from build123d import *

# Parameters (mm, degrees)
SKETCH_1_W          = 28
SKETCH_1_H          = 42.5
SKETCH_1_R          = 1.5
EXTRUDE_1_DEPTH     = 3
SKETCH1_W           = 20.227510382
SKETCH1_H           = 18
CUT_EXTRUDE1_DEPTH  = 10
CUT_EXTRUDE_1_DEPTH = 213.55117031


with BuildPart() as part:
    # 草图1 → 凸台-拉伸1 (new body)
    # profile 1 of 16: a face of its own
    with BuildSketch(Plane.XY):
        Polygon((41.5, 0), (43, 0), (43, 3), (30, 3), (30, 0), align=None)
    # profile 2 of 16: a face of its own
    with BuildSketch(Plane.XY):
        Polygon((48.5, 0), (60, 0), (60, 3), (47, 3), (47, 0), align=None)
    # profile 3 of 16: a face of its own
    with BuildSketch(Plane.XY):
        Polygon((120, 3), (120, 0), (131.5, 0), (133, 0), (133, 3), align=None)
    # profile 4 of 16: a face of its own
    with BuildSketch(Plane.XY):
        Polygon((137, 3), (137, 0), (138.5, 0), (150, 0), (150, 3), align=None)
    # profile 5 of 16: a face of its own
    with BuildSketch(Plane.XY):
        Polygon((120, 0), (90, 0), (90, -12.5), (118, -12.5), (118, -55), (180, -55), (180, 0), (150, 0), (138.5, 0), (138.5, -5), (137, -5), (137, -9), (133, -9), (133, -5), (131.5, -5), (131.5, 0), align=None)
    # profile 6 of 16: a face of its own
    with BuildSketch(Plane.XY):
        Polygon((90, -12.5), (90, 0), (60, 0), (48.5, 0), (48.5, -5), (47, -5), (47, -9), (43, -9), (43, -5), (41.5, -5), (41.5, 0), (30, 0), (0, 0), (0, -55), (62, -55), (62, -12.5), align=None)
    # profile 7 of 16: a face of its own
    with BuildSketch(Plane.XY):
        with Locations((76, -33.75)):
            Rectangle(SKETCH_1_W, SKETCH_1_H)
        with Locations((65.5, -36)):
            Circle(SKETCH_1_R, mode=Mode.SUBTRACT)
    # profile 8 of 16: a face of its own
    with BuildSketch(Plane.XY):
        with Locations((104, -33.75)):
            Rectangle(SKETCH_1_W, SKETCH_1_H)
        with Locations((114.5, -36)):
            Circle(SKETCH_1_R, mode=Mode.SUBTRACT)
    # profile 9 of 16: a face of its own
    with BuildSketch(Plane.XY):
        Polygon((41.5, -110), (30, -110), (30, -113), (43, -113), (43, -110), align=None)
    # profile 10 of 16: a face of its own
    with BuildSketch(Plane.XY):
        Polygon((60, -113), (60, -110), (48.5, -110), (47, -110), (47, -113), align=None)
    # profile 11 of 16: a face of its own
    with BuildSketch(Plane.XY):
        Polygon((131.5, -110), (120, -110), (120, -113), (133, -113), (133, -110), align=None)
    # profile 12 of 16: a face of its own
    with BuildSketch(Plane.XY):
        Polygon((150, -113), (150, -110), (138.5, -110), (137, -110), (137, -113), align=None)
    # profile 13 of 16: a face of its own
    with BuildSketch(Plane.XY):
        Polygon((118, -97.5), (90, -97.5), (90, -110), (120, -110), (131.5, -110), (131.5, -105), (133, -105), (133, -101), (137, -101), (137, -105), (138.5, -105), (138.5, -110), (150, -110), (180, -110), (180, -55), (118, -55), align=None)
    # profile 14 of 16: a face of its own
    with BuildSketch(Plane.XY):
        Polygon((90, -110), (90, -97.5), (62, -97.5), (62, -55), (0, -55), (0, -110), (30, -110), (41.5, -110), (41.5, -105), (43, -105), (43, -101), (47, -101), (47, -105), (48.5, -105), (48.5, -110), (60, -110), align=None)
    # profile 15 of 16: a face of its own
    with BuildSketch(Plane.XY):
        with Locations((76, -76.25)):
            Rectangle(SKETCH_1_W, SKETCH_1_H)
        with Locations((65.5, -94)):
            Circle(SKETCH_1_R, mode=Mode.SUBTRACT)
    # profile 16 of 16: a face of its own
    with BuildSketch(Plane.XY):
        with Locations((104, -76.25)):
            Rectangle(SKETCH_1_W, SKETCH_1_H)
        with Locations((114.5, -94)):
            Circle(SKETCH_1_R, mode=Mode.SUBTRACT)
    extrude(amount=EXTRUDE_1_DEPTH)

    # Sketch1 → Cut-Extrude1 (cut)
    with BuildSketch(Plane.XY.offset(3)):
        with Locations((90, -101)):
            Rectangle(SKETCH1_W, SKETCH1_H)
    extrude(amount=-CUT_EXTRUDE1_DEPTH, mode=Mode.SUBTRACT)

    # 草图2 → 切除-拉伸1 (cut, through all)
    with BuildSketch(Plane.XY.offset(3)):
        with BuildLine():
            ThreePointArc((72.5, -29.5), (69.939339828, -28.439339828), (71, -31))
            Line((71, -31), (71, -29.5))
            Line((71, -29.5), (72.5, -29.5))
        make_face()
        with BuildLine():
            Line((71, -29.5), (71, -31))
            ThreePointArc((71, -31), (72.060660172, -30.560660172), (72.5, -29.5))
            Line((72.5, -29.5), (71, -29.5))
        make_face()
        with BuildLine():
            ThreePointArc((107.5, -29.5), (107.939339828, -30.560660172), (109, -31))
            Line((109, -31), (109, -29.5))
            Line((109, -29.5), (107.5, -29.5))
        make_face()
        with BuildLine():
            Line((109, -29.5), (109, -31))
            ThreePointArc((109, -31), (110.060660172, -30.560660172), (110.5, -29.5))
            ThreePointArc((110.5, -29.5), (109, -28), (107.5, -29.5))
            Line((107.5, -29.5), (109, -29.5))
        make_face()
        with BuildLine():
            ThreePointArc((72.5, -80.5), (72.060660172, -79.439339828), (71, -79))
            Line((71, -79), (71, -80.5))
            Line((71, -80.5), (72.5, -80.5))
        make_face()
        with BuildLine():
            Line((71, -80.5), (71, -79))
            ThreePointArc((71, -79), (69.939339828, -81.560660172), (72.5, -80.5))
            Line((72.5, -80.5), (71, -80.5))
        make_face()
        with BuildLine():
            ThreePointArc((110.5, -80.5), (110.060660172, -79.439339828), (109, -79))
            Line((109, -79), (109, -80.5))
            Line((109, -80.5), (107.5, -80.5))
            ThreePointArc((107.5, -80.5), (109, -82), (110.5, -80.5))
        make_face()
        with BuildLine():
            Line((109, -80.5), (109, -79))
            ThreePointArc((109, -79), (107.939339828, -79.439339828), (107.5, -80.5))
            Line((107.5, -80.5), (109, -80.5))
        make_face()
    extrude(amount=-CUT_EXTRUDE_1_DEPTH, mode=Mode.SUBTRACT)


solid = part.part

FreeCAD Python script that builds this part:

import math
import FreeCAD as App
import Part
import Sketcher
from FreeCAD import Vector
Q = App.Units.Quantity


def add_polygon(sketch, points):
    """Adds a closed chain of lines whose ends are joined by coincident constraints."""
    first, n = sketch.GeometryCount, len(points)
    for a, b in zip(points, points[1:] + points[:1]):
        sketch.addGeometry(Part.LineSegment(App.Vector(*a, 0), App.Vector(*b, 0)), False)
    for i in range(n):
        sketch.addConstraint(Sketcher.Constraint("Coincident", first + i, 2, first + (i + 1) % n, 1))

doc = App.newDocument("Part")
body = doc.addObject("PartDesign::Body", "Body")

# Sketch on XY plane
sketch1 = body.newObject("Sketcher::SketchObject", "Sketch")
sketch1.AttachmentSupport = (doc.getObject("XY_Plane"), [""])
sketch1.MapMode = "FlatFace"
add_polygon(sketch1, [(43, 0), (43, 3), (30, 3), (30, 0), (0, 0), (0, -110), (30, -110), (30, -113), (43, -113), (43, -110), (41.5, -110), (41.5, -105), (43, -105), (43, -101), (47, -101), (47, -105), (48.5, -105), (48.5, -110), (47, -110), (47, -113), (60, -113), (60, -110), (120, -110), (120, -113), (133, -113), (133, -110), (131.5, -110), (131.5, -105), (133, -105), (133, -101), (137, -101), (137, -105), (138.5, -105), (138.5, -110), (137, -110), (137, -113), (150, -113), (150, -110), (180, -110), (180, 0), (150, 0), (150, 3), (137, 3), (137, 0), (138.5, 0), (138.5, -5), (137, -5), (137, -9), (133, -9), (133, -5), (131.5, -5), (131.5, 0), (133, 0), (133, 3), (120, 3), (120, 0), (60, 0), (60, 3), (47, 3), (47, 0), (48.5, 0), (48.5, -5), (47, -5), (47, -9), (43, -9), (43, -5), (41.5, -5), (41.5, 0)])  # lines 0-67
sketch1.addGeometry(Part.Circle(Vector(65.5, -36, 0), Vector(0, 0, 1), 1.5), False)  # 68
sketch1.addGeometry(Part.Circle(Vector(114.5, -36, 0), Vector(0, 0, 1), 1.5), False)  # 69
sketch1.addGeometry(Part.Circle(Vector(65.5, -94, 0), Vector(0, 0, 1), 1.5), False)  # 70
sketch1.addGeometry(Part.Circle(Vector(114.5, -94, 0), Vector(0, 0, 1), 1.5), False)  # 71
sketch1.addConstraint([
    Sketcher.Constraint("Vertical", 0),
    Sketcher.Constraint("Horizontal", 1),
    Sketcher.Constraint("Vertical", 2),
    Sketcher.Constraint("Horizontal", 3),
    Sketcher.Constraint("Vertical", 4),
    Sketcher.Constraint("Horizontal", 5),
    Sketcher.Constraint("Vertical", 6),
    Sketcher.Constraint("Horizontal", 7),
    Sketcher.Constraint("Vertical", 8),
    Sketcher.Constraint("Horizontal", 9),
    Sketcher.Constraint("Vertical", 10),
    Sketcher.Constraint("Horizontal", 11),
    Sketcher.Constraint("Vertical", 12),
    Sketcher.Constraint("Horizontal", 13),
    Sketcher.Constraint("Vertical", 14),
    Sketcher.Constraint("Horizontal", 15),
    Sketcher.Constraint("Vertical", 16),
    Sketcher.Constraint("Horizontal", 17),
    Sketcher.Constraint("Vertical", 18),
    Sketcher.Constraint("Horizontal", 19),
    Sketcher.Constraint("Vertical", 20),
    Sketcher.Constraint("Horizontal", 21),
    Sketcher.Constraint("Vertical", 22),
    Sketcher.Constraint("Horizontal", 23),
    Sketcher.Constraint("Vertical", 24),
    Sketcher.Constraint("Horizontal", 25),
    Sketcher.Constraint("Vertical", 26),
    Sketcher.Constraint("Horizontal", 27),
    Sketcher.Constraint("Vertical", 28),
    Sketcher.Constraint("Horizontal", 29),
    Sketcher.Constraint("Vertical", 30),
    Sketcher.Constraint("Horizontal", 31),
    Sketcher.Constraint("Vertical", 32),
    Sketcher.Constraint("Horizontal", 33),
    Sketcher.Constraint("Vertical", 34),
    Sketcher.Constraint("Horizontal", 35),
    Sketcher.Constraint("Vertical", 36),
    Sketcher.Constraint("Horizontal", 37),
    Sketcher.Constraint("Vertical", 38),
    Sketcher.Constraint("Horizontal", 39),
    Sketcher.Constraint("Vertical", 40),
    Sketcher.Constraint("Horizontal", 41),
    Sketcher.Constraint("Vertical", 42),
    Sketcher.Constraint("Horizontal", 43),
    Sketcher.Constraint("Vertical", 44),
    Sketcher.Constraint("Horizontal", 45),
    Sketcher.Constraint("Vertical", 46),
    Sketcher.Constraint("Horizontal", 47),
    Sketcher.Constraint("Vertical", 48),
    Sketcher.Constraint("Horizontal", 49),
    Sketcher.Constraint("Vertical", 50),
    Sketcher.Constraint("Horizontal", 51),
    Sketcher.Constraint("Vertical", 52),
    Sketcher.Constraint("Horizontal", 53),
    Sketcher.Constraint("Vertical", 54),
    Sketcher.Constraint("Horizontal", 55),
    Sketcher.Constraint("Vertical", 56),
    Sketcher.Constraint("Horizontal", 57),
    Sketcher.Constraint("Vertical", 58),
    Sketcher.Constraint("Horizontal", 59),
    Sketcher.Constraint("Vertical", 60),
    Sketcher.Constraint("Horizontal", 61),
    Sketcher.Constraint("Vertical", 62),
    Sketcher.Constraint("Horizontal", 63),
    Sketcher.Constraint("Vertical", 64),
    Sketcher.Constraint("Horizontal", 65),
    Sketcher.Constraint("Vertical", 66),
    Sketcher.Constraint("Horizontal", 67),
    Sketcher.Constraint("Coincident", 3, 2, -1, 1),
    Sketcher.Constraint("Equal", 68, 69),
    Sketcher.Constraint("Equal", 69, 70),
    Sketcher.Constraint("Equal", 70, 71),
    Sketcher.Constraint("PointOnObject", 38, 2, -1),
    Sketcher.Constraint("PointOnObject", 42, 2, -1),
    Sketcher.Constraint("PointOnObject", 50, 2, -1),
    Sketcher.Constraint("PointOnObject", 54, 2, -1),
    Sketcher.Constraint("PointOnObject", 58, 2, -1),
    Sketcher.Constraint("PointOnObject", 66, 2, -1),
    Sketcher.Constraint("Horizontal", 68, 3, 69, 3),
    Sketcher.Constraint("Horizontal", 70, 3, 71, 3),
    Sketcher.Constraint("Horizontal", 5, 2, 8, 2),
    Sketcher.Constraint("Horizontal", 11, 2, 14, 2),
    Sketcher.Constraint("Horizontal", 9, 2, 16, 2),
    Sketcher.Constraint("Horizontal", 7, 2, 18, 2),
    Sketcher.Constraint("Horizontal", 17, 2, 20, 2),
    Sketcher.Constraint("Horizontal", 19, 2, 22, 2),
    Sketcher.Constraint("Horizontal", 21, 2, 24, 2),
    Sketcher.Constraint("Horizontal", 15, 2, 26, 2),
    Sketcher.Constraint("Horizontal", 13, 2, 28, 2),
    Sketcher.Constraint("Horizontal", 27, 2, 30, 2),
    Sketcher.Constraint("Horizontal", 25, 2, 32, 2),
    Sketcher.Constraint("Horizontal", 23, 2, 34, 2),
    Sketcher.Constraint("Horizontal", 33, 2, 36, 2),
    Sketcher.Constraint("Horizontal", 1, 2, 40, 2),
    Sketcher.Constraint("Horizontal", 45, 2, 48, 2),
    Sketcher.Constraint("Horizontal", 41, 2, 52, 2),
    Sketcher.Constraint("Horizontal", 53, 2, 56, 2),
    Sketcher.Constraint("Horizontal", 49, 2, 60, 2),
    Sketcher.Constraint("Horizontal", 47, 2, 62, 2),
    Sketcher.Constraint("Horizontal", 61, 2, 64, 2),
    Sketcher.Constraint("Vertical", 68, 3, 70, 3),
    Sketcher.Constraint("Vertical", 69, 3, 71, 3),
    Sketcher.Constraint("Vertical", 2, 2, 5, 2),
    Sketcher.Constraint("Vertical", 0, 2, 7, 2),
    Sketcher.Constraint("Vertical", 8, 2, 11, 2),
    Sketcher.Constraint("Vertical", 14, 2, 17, 2),
    Sketcher.Constraint("Vertical", 24, 2, 27, 2),
    Sketcher.Constraint("Vertical", 30, 2, 33, 2),
    Sketcher.Constraint("Vertical", 36, 2, 39, 2),
    Sketcher.Constraint("Vertical", 34, 2, 41, 2),
    Sketcher.Constraint("Vertical", 32, 2, 43, 2),
    Sketcher.Constraint("Vertical", 42, 2, 45, 2),
    Sketcher.Constraint("Vertical", 28, 2, 47, 2),
    Sketcher.Constraint("Vertical", 26, 2, 49, 2),
    Sketcher.Constraint("Vertical", 48, 2, 51, 2),
    Sketcher.Constraint("Vertical", 22, 2, 53, 2),
    Sketcher.Constraint("Vertical", 20, 2, 55, 2),
    Sketcher.Constraint("Vertical", 18, 2, 57, 2),
    Sketcher.Constraint("Vertical", 16, 2, 59, 2),
    Sketcher.Constraint("Vertical", 58, 2, 61, 2),
    Sketcher.Constraint("Vertical", 12, 2, 63, 2),
    Sketcher.Constraint("Vertical", 10, 2, 65, 2),
    Sketcher.Constraint("Equal", 11, 15),
    Sketcher.Constraint("Equal", 7, 19),
    Sketcher.Constraint("Equal", 19, 23),
    Sketcher.Constraint("Equal", 17, 25),
    Sketcher.Constraint("Equal", 13, 29),
    Sketcher.Constraint("Equal", 27, 31),
    Sketcher.Constraint("Equal", 23, 35),
    Sketcher.Constraint("Equal", 5, 37),
    Sketcher.Constraint("Equal", 2, 6),
    Sketcher.Constraint("Equal", 63, 12),
    Sketcher.Constraint("Equal", 32, 44),
    Sketcher.Constraint("Equal", 30, 46),
    Sketcher.Constraint("Diameter", 68, Q("3 mm")),
    Sketcher.Constraint("DistanceX", 1, 2, 1, 1, Q("13 mm")),
    Sketcher.Constraint("DistanceX", 3, 2, 3, 1, Q("30 mm")),
    Sketcher.Constraint("DistanceX", 13, 1, 13, 2, Q("4 mm")),
    Sketcher.Constraint("DistanceX", 21, 1, 21, 2, Q("60 mm")),
    Sketcher.Constraint("DistanceY", 0, 1, 0, 2, Q("3 mm")),
    Sketcher.Constraint("DistanceY", 4, 2, 4, 1, Q("110 mm")),
    Sketcher.Constraint("DistanceY", 10, 1, 10, 2, Q("5 mm")),
    Sketcher.Constraint("DistanceX", 9, 2, 9, 1, Q("1.5 mm")),
    Sketcher.Constraint("DistanceY", 68, 3, -1, 1, Q("36 mm")),
    Sketcher.Constraint("DistanceY", 70, 3, -1, 1, Q("94 mm")),
    Sketcher.Constraint("DistanceX", -1, 1, 68, 3, Q("65.5 mm")),
    Sketcher.Constraint("DistanceX", -1, 1, 69, 3, Q("114.5 mm")),
])
pad1 = body.newObject("PartDesign::Pad", "Pad")
pad1.Profile = sketch1
pad1.Length = 3

# Sketch on XY plane
sketch2 = body.newObject("Sketcher::SketchObject", "Sketch001")
sketch2.AttachmentSupport = (doc.getObject("XY_Plane"), [""])
sketch2.MapMode = "FlatFace"
sketch2.AttachmentOffset = App.Placement(Vector(0, 0, 3), App.Rotation())
add_polygon(sketch2, [(79.886245, -92), (79.886245, -110), (100.113755, -110), (100.113755, -92)])  # lines 0-3
sketch2.addConstraint([
    Sketcher.Constraint("Vertical", 0),
    Sketcher.Constraint("Horizontal", 1),
    Sketcher.Constraint("Vertical", 2),
    Sketcher.Constraint("Horizontal", 3),
    Sketcher.Constraint("DistanceY", 0, 2, 0, 1, Q("18 mm")),
    Sketcher.Constraint("DistanceY", 0, 2, -1, 1, Q("110 mm")),
    Sketcher.Constraint("DistanceX", 1, 1, 1, 2, Q("20.22751 mm")),
    Sketcher.Constraint("DistanceX", -1, 1, 0, 2, Q("79.886245 mm")),
])
pocket1 = body.newObject("PartDesign::Pocket", "Pocket")
pocket1.Profile = sketch2
pocket1.Length = 10

# Sketch on XY plane
sketch3 = body.newObject("Sketcher::SketchObject", "Sketch002")
sketch3.AttachmentSupport = (doc.getObject("XY_Plane"), [""])
sketch3.MapMode = "FlatFace"
sketch3.AttachmentOffset = App.Placement(Vector(0, 0, 3), App.Rotation())
sketch3.addGeometry([
    Part.ArcOfCircle(Part.Circle(Vector(71, -29.5, 0), Vector(0, 0, 1), 1.5), math.radians(0), math.radians(270)),  # 0
    Part.ArcOfCircle(Part.Circle(Vector(71, -29.5, 0), Vector(0, 0, 1), 1.5), math.radians(-90), math.radians(0)),  # 1
    Part.ArcOfCircle(Part.Circle(Vector(109, -29.5, 0), Vector(0, 0, 1), 1.5), math.radians(180), math.radians(270)),  # 2
    Part.ArcOfCircle(Part.Circle(Vector(109, -29.5, 0), Vector(0, 0, 1), 1.5), math.radians(-90), math.radians(0)),  # 3
    Part.ArcOfCircle(Part.Circle(Vector(109, -29.5, 0), Vector(0, 0, 1), 1.5), math.radians(0), math.radians(180)),  # 4
    Part.ArcOfCircle(Part.Circle(Vector(71, -80.5, 0), Vector(0, 0, 1), 1.5), math.radians(0), math.radians(90)),  # 5
    Part.ArcOfCircle(Part.Circle(Vector(71, -80.5, 0), Vector(0, 0, 1), 1.5), math.radians(90), math.radians(360)),  # 6
    Part.ArcOfCircle(Part.Circle(Vector(109, -80.5, 0), Vector(0, 0, 1), 1.5), math.radians(0), math.radians(90)),  # 7
    Part.ArcOfCircle(Part.Circle(Vector(109, -80.5, 0), Vector(0, 0, 1), 1.5), math.radians(90), math.radians(180)),  # 8
    Part.ArcOfCircle(Part.Circle(Vector(109, -80.5, 0), Vector(0, 0, 1), 1.5), math.radians(180), math.radians(360)),  # 9
], False)
sketch3.addConstraint([
    Sketcher.Constraint("Tangent", 0, 1, 1, 2),
    Sketcher.Constraint("Coincident", 1, 1, 0, 2),
    Sketcher.Constraint("Tangent", 2, 2, 3, 1),
    Sketcher.Constraint("Tangent", 3, 2, 4, 1),
    Sketcher.Constraint("Tangent", 4, 2, 2, 1),
    Sketcher.Constraint("Tangent", 5, 1, 6, 2),
    Sketcher.Constraint("Coincident", 6, 1, 5, 2),
    Sketcher.Constraint("Tangent", 7, 2, 8, 1),
    Sketcher.Constraint("Tangent", 8, 2, 9, 1),
    Sketcher.Constraint("Tangent", 9, 2, 7, 1),
    Sketcher.Constraint("Equal", 1, 2),
    Sketcher.Constraint("Equal", 4, 5),
    Sketcher.Constraint("Equal", 6, 7),
    Sketcher.Constraint("Horizontal", 1, 3, 2, 3),
    Sketcher.Constraint("Horizontal", 6, 3, 7, 3),
    Sketcher.Constraint("Horizontal", 4, 3, 0, 1),
    Sketcher.Constraint("Horizontal", 0, 1, 3, 2),
    Sketcher.Constraint("Horizontal", 3, 2, 4, 2),
    Sketcher.Constraint("Horizontal", 9, 3, 5, 1),
    Sketcher.Constraint("Horizontal", 5, 1, 8, 2),
    Sketcher.Constraint("Horizontal", 8, 2, 9, 2),
    Sketcher.Constraint("Vertical", 1, 3, 5, 3),
    Sketcher.Constraint("Vertical", 4, 3, 7, 3),
    Sketcher.Constraint("Vertical", 6, 3, 1, 1),
    Sketcher.Constraint("Vertical", 9, 3, 2, 2),
    Sketcher.Constraint("Vertical", 1, 1, 6, 1),
    Sketcher.Constraint("Vertical", 2, 2, 7, 2),
    Sketcher.Constraint("Radius", 0, Q("1.5 mm")),
    Sketcher.Constraint("DistanceX", -1, 1, 0, 3, Q("71 mm")),
    Sketcher.Constraint("DistanceX", -1, 1, 2, 3, Q("109 mm")),
    Sketcher.Constraint("DistanceY", 1, 1, -1, 1, Q("31 mm")),
    Sketcher.Constraint("DistanceY", 6, 1, -1, 1, Q("79 mm")),
])
pocket2 = body.newObject("PartDesign::Pocket", "Pocket001")
pocket2.Profile = sketch3
pocket2.Type = "ThroughAll"

doc.recompute()
